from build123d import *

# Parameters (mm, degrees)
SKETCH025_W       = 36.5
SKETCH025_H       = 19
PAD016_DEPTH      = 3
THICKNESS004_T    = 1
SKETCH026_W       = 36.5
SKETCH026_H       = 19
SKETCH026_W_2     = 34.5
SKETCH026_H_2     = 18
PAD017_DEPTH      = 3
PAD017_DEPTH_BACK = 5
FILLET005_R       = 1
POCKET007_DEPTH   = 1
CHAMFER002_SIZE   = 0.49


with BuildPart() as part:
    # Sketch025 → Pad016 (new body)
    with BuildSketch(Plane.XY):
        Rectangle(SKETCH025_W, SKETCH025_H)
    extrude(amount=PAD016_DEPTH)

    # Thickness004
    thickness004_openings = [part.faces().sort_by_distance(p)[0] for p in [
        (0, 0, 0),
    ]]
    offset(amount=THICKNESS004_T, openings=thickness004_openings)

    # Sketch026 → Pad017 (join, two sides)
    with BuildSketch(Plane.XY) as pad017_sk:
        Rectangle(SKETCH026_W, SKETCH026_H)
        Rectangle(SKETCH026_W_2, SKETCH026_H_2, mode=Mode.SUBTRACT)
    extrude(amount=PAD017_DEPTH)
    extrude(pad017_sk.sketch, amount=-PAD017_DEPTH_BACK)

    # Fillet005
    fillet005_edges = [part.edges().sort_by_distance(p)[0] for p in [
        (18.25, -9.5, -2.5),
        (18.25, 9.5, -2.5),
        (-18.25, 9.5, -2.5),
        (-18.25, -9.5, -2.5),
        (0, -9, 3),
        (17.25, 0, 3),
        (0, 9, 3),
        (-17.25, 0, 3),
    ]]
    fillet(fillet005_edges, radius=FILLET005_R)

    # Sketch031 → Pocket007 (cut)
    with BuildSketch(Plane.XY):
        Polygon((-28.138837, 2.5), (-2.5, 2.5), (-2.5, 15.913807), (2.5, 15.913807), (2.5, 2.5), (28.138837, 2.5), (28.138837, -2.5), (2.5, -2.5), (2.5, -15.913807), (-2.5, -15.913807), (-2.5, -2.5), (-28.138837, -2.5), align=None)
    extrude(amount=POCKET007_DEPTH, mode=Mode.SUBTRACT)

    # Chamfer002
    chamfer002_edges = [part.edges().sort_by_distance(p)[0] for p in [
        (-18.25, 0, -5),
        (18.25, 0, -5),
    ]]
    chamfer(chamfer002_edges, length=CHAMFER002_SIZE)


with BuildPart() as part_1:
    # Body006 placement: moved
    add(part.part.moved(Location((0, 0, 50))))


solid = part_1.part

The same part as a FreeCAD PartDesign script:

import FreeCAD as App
import Part
import Sketcher
Q = App.Units.Quantity


def edges_at(feature, points):
    """Names of the edges that pass closest to the given points."""
    edges = feature.Shape.Edges
    near = lambda p: min(range(len(edges)), key=lambda i: edges[i].distToShape(Part.Vertex(*p))[0])
    return sorted({f"Edge{near(p) + 1}" for p in points})


def faces_at(feature, points):
    """Names of the faces that lie closest to the given points."""
    faces = feature.Shape.Faces
    near = lambda p: min(range(len(faces)), key=lambda i: faces[i].distToShape(Part.Vertex(*p))[0])
    return sorted({f"Face{near(p) + 1}" for p in points})

doc = App.newDocument("Part")
body = doc.addObject("PartDesign::Body", "Body")

# Sketch on XY plane
sketch1 = doc.addObject("Sketcher::SketchObject", "Sketch")
body.addObject(sketch1)
sketch1.AttachmentSupport = (doc.XY_Plane, [""])
sketch1.MapMode = "FlatFace"
sketch1.addGeometry(Part.LineSegment(App.Vector(-18, 10, 0), App.Vector(-18, -10, 0)), False)
sketch1.addGeometry(Part.LineSegment(App.Vector(-18, -10, 0), App.Vector(18, -10, 0)), False)
sketch1.addGeometry(Part.LineSegment(App.Vector(18, -10, 0), App.Vector(18, 10, 0)), False)
sketch1.addGeometry(Part.LineSegment(App.Vector(18, 10, 0), App.Vector(-18, 10, 0)), False)
sketch1.addConstraint(Sketcher.Constraint("Coincident", 0, 2, 1, 1))
sketch1.addConstraint(Sketcher.Constraint("Coincident", 1, 2, 2, 1))
sketch1.addConstraint(Sketcher.Constraint("Coincident", 2, 2, 3, 1))
sketch1.addConstraint(Sketcher.Constraint("Coincident", 3, 2, 0, 1))
sketch1.addConstraint(Sketcher.Constraint("Vertical", 0))
sketch1.addConstraint(Sketcher.Constraint("Horizontal", 1))
sketch1.addConstraint(Sketcher.Constraint("Vertical", 2))
sketch1.addConstraint(Sketcher.Constraint("Horizontal", 3))
sketch1.addConstraint(Sketcher.Constraint("Symmetric", 0, 2, 2, 2, -1, 1))
sketch1.addConstraint(Sketcher.Constraint("DistanceY", 0, 2, 0, 1, Q("19 mm")))
sketch1.addConstraint(Sketcher.Constraint("DistanceX", 1, 1, 1, 2, Q("36.5 mm")))
pad1 = doc.addObject("PartDesign::Pad", "Pad")
body.addObject(pad1)
pad1.Profile = sketch1
pad1.Length = 3
doc.recompute()

thickness = doc.addObject("PartDesign::Thickness", "Thickness")
body.addObject(thickness)
thickness.Base = (pad1, faces_at(pad1, [(0, 0, 0)]))
thickness.Value = 1
thickness.Reversed = False
thickness.Join = "Arc"

# Sketch on XY plane
sketch2 = doc.addObject("Sketcher::SketchObject", "Sketch001")
body.addObject(sketch2)
sketch2.AttachmentSupport = (doc.XY_Plane, [""])
sketch2.MapMode = "FlatFace"
sketch2.addGeometry(Part.LineSegment(App.Vector(-18, 10, 0), App.Vector(-18, -10, 0)), False)
sketch2.addGeometry(Part.LineSegment(App.Vector(-18, -10, 0), App.Vector(18, -10, 0)), False)
sketch2.addGeometry(Part.LineSegment(App.Vector(18, -10, 0), App.Vector(18, 10, 0)), False)
sketch2.addGeometry(Part.LineSegment(App.Vector(18, 10, 0), App.Vector(-18, 10, 0)), False)
sketch2.addGeometry(Part.LineSegment(App.Vector(17, -9, 0), App.Vector(-17, -9, 0)), False)
sketch2.addGeometry(Part.LineSegment(App.Vector(-17, -9, 0), App.Vector(-17, 9, 0)), False)
sketch2.addGeometry(Part.LineSegment(App.Vector(-17, 9, 0), App.Vector(17, 9, 0)), False)
sketch2.addGeometry(Part.LineSegment(App.Vector(17, 9, 0), App.Vector(17, -9, 0)), False)
sketch2.addConstraint(Sketcher.Constraint("Coincident", 0, 2, 1, 1))
sketch2.addConstraint(Sketcher.Constraint("Coincident", 1, 2, 2, 1))
sketch2.addConstraint(Sketcher.Constraint("Coincident", 2, 2, 3, 1))
sketch2.addConstraint(Sketcher.Constraint("Coincident", 3, 2, 0, 1))
sketch2.addConstraint(Sketcher.Constraint("Coincident", 4, 2, 5, 1))
sketch2.addConstraint(Sketcher.Constraint("Coincident", 5, 2, 6, 1))
sketch2.addConstraint(Sketcher.Constraint("Coincident", 6, 2, 7, 1))
sketch2.addConstraint(Sketcher.Constraint("Coincident", 7, 2, 4, 1))
sketch2.addConstraint(Sketcher.Constraint("Vertical", 0))
sketch2.addConstraint(Sketcher.Constraint("Horizontal", 1))
sketch2.addConstraint(Sketcher.Constraint("Vertical", 2))
sketch2.addConstraint(Sketcher.Constraint("Horizontal", 3))
sketch2.addConstraint(Sketcher.Constraint("Horizontal", 4))
sketch2.addConstraint(Sketcher.Constraint("Vertical", 5))
sketch2.addConstraint(Sketcher.Constraint("Horizontal", 6))
sketch2.addConstraint(Sketcher.Constraint("Vertical", 7))
sketch2.addConstraint(Sketcher.Constraint("Symmetric", 0, 2, 2, 2, -1, 1))
sketch2.addConstraint(Sketcher.Constraint("Symmetric", 4, 2, 6, 2, -1, 1))
sketch2.addConstraint(Sketcher.Constraint("DistanceY", 0, 2, 0, 1, Q("19 mm")))
sketch2.addConstraint(Sketcher.Constraint("DistanceY", 5, 1, 5, 2, Q("18 mm")))
sketch2.addConstraint(Sketcher.Constraint("DistanceX", 1, 1, 1, 2, Q("36.5 mm")))
sketch2.addConstraint(Sketcher.Constraint("DistanceX", 4, 2, 4, 1, Q("34.5 mm")))
pad2 = doc.addObject("PartDesign::Pad", "Pad001")
body.addObject(pad2)
pad2.Profile = sketch2
pad2.Type = "TwoLengths"
pad2.Length = 3
pad2.Length2 = 5
doc.recompute()

fillet = doc.addObject("PartDesign::Fillet", "Fillet")
body.addObject(fillet)
fillet.Base = (pad2, edges_at(pad2, [
    (18.25, -9.5, -2.5),
    (18.25, 9.5, -2.5),
    (-18.25, 9.5, -2.5),
    (-18.25, -9.5, -2.5),
    (0, -9, 3),
    (17.25, 0, 3),
    (0, 9, 3),
    (-17.25, 0, 3),
]))
fillet.Radius = 1

# Sketch on XY plane
sketch3 = doc.addObject("Sketcher::SketchObject", "Sketch002")
body.addObject(sketch3)
sketch3.AttachmentSupport = (doc.XY_Plane, [""])
sketch3.MapMode = "FlatFace"
sketch3.addGeometry(Part.LineSegment(App.Vector(-2, 2, 0), App.Vector(-28, 2, 0)), False)
sketch3.addGeometry(Part.LineSegment(App.Vector(-28, 2, 0), App.Vector(-28, -2, 0)), False)
sketch3.addGeometry(Part.LineSegment(App.Vector(-28, -2, 0), App.Vector(-2, -2, 0)), False)
sketch3.addGeometry(Part.LineSegment(App.Vector(-2, -2, 0), App.Vector(-2, -16, 0)), False)
sketch3.addGeometry(Part.LineSegment(App.Vector(-2, -16, 0), App.Vector(2, -16, 0)), False)
sketch3.addGeometry(Part.LineSegment(App.Vector(2, -16, 0), App.Vector(2, -2, 0)), False)
sketch3.addGeometry(Part.LineSegment(App.Vector(2, -2, 0), App.Vector(28, -2, 0)), False)
sketch3.addGeometry(Part.LineSegment(App.Vector(28, -2, 0), App.Vector(28, 2, 0)), False)
sketch3.addGeometry(Part.LineSegment(App.Vector(28, 2, 0), App.Vector(2, 2, 0)), False)
sketch3.addGeometry(Part.LineSegment(App.Vector(2, 2, 0), App.Vector(2, 16, 0)), False)
sketch3.addGeometry(Part.LineSegment(App.Vector(2, 16, 0), App.Vector(-2, 16, 0)), False)
sketch3.addGeometry(Part.LineSegment(App.Vector(-2, 16, 0), App.Vector(-2, 2, 0)), False)
sketch3.addConstraint(Sketcher.Constraint("Coincident", 0, 2, 1, 1))
sketch3.addConstraint(Sketcher.Constraint("Coincident", 1, 2, 2, 1))
sketch3.addConstraint(Sketcher.Constraint("Coincident", 2, 2, 3, 1))
sketch3.addConstraint(Sketcher.Constraint("Coincident", 3, 2, 4, 1))
sketch3.addConstraint(Sketcher.Constraint("Coincident", 4, 2, 5, 1))
sketch3.addConstraint(Sketcher.Constraint("Coincident", 5, 2, 6, 1))
sketch3.addConstraint(Sketcher.Constraint("Coincident", 6, 2, 7, 1))
sketch3.addConstraint(Sketcher.Constraint("Coincident", 7, 2, 8, 1))
sketch3.addConstraint(Sketcher.Constraint("Coincident", 8, 2, 9, 1))
sketch3.addConstraint(Sketcher.Constraint("Coincident", 9, 2, 10, 1))
sketch3.addConstraint(Sketcher.Constraint("Coincident", 10, 2, 11, 1))
sketch3.addConstraint(Sketcher.Constraint("Coincident", 11, 2, 0, 1))
sketch3.addConstraint(Sketcher.Constraint("Horizontal", 0))
sketch3.addConstraint(Sketcher.Constraint("Vertical", 1))
sketch3.addConstraint(Sketcher.Constraint("Horizontal", 2))
sketch3.addConstraint(Sketcher.Constraint("Vertical", 3))
sketch3.addConstraint(Sketcher.Constraint("Horizontal", 4))
sketch3.addConstraint(Sketcher.Constraint("Vertical", 5))
sketch3.addConstraint(Sketcher.Constraint("Horizontal", 6))
sketch3.addConstraint(Sketcher.Constraint("Vertical", 7))
sketch3.addConstraint(Sketcher.Constraint("Horizontal", 8))
sketch3.addConstraint(Sketcher.Constraint("Vertical", 9))
sketch3.addConstraint(Sketcher.Constraint("Horizontal", 10))
sketch3.addConstraint(Sketcher.Constraint("Vertical", 11))
sketch3.addConstraint(Sketcher.Constraint("Symmetric", 0, 2, 6, 2, -1, 1))
sketch3.addConstraint(Sketcher.Constraint("Symmetric", 2, 2, 8, 2, -1, 1))
sketch3.addConstraint(Sketcher.Constraint("Symmetric", 4, 2, 10, 2, -1, 1))
sketch3.addConstraint(Sketcher.Constraint("Symmetric", 2, 2, 5, 2, -2))
sketch3.addConstraint(Sketcher.Constraint("Equal", 10, 1))
sketch3.addConstraint(Sketcher.Constraint("DistanceX", 4, 1, 4, 2, Q("5 mm")))
sketch3.addConstraint(Sketcher.Constraint("DistanceX", 0, 2, 0, 1, Q("25.638837 mm")))
sketch3.addConstraint(Sketcher.Constraint("DistanceY", 3, 2, 3, 1, Q("13.413807 mm")))
pocket1 = doc.addObject("PartDesign::Pocket", "Pocket")
body.addObject(pocket1)
pocket1.Profile = sketch3
pocket1.Length = 1
pocket1.Reversed = True
doc.recompute()

chamfer = doc.addObject("PartDesign::Chamfer", "Chamfer")
body.addObject(chamfer)
chamfer.Base = (pocket1, edges_at(pocket1, [(-18.25, 0, -5), (18.25, 0, -5)]))
chamfer.Size = 0.49
body2 = doc.addObject("PartDesign::Body", "Body001")
doc.recompute()

body.Placement = App.Placement(App.Vector(0, 0, 50), App.Rotation(App.Vector(0, 0, 1), 0))
boolean = doc.addObject("PartDesign::Boolean", "Boolean")
body2.addObject(boolean)
boolean.Type = "Fuse"
boolean.addObjects([body])

doc.recompute()
